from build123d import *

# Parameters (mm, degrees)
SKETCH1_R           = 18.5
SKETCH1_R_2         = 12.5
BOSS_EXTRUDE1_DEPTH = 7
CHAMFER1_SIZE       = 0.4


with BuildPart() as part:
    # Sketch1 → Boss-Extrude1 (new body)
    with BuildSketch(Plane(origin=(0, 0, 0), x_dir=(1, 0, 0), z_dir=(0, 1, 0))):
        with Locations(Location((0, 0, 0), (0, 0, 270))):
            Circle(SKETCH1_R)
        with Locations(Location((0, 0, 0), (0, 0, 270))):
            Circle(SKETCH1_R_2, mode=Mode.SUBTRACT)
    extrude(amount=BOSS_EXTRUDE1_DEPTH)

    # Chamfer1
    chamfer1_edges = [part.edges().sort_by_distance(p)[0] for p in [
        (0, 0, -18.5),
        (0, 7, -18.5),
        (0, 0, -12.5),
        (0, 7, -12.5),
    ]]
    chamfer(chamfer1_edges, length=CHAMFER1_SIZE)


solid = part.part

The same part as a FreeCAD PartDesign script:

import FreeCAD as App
import Part
import Sketcher
Q = App.Units.Quantity


def edges_at(feature, points):
    """Names of the edges that pass closest to the given points."""
    edges = feature.Shape.Edges
    near = lambda p: min(range(len(edges)), key=lambda i: edges[i].distToShape(Part.Vertex(*p))[0])
    return sorted({f"Edge{near(p) + 1}" for p in points})

doc = App.newDocument("Part")
body = doc.addObject("PartDesign::Body", "Body")

# Sketch on XZ plane
sketch1 = body.newObject("Sketcher::SketchObject", "Sketch")
sketch1.AttachmentSupport = (doc.getObject("XZ_Plane"), [""])
sketch1.MapMode = "FlatFace"
sketch1.addGeometry(Part.Circle(App.Vector(0, 0, 0), App.Vector(0, 0, 1), 18.5), False)
sketch1.addGeometry(Part.Circle(App.Vector(0, 0, 0), App.Vector(0, 0, 1), 12.5), False)
sketch1.addConstraint(Sketcher.Constraint("Coincident", 0, 3, -1, 1))
sketch1.addConstraint(Sketcher.Constraint("Coincident", 1, 3, -1, 1))
sketch1.addConstraint(Sketcher.Constraint("Diameter", 0, Q("37 mm")))
sketch1.addConstraint(Sketcher.Constraint("Diameter", 1, Q("25 mm")))
pad1 = body.newObject("PartDesign::Pad", "Pad")
pad1.Profile = sketch1
pad1.Length = 7
pad1.Reversed = True
doc.recompute()

chamfer = body.newObject("PartDesign::Chamfer", "Chamfer")
chamfer.Base = (pad1, edges_at(pad1, [
    (0, 0, -18.5),
    (0, 7, -18.5),
    (0, 0, -12.5),
    (0, 7, -12.5),
]))
chamfer.Size = 0.4

doc.recompute()
